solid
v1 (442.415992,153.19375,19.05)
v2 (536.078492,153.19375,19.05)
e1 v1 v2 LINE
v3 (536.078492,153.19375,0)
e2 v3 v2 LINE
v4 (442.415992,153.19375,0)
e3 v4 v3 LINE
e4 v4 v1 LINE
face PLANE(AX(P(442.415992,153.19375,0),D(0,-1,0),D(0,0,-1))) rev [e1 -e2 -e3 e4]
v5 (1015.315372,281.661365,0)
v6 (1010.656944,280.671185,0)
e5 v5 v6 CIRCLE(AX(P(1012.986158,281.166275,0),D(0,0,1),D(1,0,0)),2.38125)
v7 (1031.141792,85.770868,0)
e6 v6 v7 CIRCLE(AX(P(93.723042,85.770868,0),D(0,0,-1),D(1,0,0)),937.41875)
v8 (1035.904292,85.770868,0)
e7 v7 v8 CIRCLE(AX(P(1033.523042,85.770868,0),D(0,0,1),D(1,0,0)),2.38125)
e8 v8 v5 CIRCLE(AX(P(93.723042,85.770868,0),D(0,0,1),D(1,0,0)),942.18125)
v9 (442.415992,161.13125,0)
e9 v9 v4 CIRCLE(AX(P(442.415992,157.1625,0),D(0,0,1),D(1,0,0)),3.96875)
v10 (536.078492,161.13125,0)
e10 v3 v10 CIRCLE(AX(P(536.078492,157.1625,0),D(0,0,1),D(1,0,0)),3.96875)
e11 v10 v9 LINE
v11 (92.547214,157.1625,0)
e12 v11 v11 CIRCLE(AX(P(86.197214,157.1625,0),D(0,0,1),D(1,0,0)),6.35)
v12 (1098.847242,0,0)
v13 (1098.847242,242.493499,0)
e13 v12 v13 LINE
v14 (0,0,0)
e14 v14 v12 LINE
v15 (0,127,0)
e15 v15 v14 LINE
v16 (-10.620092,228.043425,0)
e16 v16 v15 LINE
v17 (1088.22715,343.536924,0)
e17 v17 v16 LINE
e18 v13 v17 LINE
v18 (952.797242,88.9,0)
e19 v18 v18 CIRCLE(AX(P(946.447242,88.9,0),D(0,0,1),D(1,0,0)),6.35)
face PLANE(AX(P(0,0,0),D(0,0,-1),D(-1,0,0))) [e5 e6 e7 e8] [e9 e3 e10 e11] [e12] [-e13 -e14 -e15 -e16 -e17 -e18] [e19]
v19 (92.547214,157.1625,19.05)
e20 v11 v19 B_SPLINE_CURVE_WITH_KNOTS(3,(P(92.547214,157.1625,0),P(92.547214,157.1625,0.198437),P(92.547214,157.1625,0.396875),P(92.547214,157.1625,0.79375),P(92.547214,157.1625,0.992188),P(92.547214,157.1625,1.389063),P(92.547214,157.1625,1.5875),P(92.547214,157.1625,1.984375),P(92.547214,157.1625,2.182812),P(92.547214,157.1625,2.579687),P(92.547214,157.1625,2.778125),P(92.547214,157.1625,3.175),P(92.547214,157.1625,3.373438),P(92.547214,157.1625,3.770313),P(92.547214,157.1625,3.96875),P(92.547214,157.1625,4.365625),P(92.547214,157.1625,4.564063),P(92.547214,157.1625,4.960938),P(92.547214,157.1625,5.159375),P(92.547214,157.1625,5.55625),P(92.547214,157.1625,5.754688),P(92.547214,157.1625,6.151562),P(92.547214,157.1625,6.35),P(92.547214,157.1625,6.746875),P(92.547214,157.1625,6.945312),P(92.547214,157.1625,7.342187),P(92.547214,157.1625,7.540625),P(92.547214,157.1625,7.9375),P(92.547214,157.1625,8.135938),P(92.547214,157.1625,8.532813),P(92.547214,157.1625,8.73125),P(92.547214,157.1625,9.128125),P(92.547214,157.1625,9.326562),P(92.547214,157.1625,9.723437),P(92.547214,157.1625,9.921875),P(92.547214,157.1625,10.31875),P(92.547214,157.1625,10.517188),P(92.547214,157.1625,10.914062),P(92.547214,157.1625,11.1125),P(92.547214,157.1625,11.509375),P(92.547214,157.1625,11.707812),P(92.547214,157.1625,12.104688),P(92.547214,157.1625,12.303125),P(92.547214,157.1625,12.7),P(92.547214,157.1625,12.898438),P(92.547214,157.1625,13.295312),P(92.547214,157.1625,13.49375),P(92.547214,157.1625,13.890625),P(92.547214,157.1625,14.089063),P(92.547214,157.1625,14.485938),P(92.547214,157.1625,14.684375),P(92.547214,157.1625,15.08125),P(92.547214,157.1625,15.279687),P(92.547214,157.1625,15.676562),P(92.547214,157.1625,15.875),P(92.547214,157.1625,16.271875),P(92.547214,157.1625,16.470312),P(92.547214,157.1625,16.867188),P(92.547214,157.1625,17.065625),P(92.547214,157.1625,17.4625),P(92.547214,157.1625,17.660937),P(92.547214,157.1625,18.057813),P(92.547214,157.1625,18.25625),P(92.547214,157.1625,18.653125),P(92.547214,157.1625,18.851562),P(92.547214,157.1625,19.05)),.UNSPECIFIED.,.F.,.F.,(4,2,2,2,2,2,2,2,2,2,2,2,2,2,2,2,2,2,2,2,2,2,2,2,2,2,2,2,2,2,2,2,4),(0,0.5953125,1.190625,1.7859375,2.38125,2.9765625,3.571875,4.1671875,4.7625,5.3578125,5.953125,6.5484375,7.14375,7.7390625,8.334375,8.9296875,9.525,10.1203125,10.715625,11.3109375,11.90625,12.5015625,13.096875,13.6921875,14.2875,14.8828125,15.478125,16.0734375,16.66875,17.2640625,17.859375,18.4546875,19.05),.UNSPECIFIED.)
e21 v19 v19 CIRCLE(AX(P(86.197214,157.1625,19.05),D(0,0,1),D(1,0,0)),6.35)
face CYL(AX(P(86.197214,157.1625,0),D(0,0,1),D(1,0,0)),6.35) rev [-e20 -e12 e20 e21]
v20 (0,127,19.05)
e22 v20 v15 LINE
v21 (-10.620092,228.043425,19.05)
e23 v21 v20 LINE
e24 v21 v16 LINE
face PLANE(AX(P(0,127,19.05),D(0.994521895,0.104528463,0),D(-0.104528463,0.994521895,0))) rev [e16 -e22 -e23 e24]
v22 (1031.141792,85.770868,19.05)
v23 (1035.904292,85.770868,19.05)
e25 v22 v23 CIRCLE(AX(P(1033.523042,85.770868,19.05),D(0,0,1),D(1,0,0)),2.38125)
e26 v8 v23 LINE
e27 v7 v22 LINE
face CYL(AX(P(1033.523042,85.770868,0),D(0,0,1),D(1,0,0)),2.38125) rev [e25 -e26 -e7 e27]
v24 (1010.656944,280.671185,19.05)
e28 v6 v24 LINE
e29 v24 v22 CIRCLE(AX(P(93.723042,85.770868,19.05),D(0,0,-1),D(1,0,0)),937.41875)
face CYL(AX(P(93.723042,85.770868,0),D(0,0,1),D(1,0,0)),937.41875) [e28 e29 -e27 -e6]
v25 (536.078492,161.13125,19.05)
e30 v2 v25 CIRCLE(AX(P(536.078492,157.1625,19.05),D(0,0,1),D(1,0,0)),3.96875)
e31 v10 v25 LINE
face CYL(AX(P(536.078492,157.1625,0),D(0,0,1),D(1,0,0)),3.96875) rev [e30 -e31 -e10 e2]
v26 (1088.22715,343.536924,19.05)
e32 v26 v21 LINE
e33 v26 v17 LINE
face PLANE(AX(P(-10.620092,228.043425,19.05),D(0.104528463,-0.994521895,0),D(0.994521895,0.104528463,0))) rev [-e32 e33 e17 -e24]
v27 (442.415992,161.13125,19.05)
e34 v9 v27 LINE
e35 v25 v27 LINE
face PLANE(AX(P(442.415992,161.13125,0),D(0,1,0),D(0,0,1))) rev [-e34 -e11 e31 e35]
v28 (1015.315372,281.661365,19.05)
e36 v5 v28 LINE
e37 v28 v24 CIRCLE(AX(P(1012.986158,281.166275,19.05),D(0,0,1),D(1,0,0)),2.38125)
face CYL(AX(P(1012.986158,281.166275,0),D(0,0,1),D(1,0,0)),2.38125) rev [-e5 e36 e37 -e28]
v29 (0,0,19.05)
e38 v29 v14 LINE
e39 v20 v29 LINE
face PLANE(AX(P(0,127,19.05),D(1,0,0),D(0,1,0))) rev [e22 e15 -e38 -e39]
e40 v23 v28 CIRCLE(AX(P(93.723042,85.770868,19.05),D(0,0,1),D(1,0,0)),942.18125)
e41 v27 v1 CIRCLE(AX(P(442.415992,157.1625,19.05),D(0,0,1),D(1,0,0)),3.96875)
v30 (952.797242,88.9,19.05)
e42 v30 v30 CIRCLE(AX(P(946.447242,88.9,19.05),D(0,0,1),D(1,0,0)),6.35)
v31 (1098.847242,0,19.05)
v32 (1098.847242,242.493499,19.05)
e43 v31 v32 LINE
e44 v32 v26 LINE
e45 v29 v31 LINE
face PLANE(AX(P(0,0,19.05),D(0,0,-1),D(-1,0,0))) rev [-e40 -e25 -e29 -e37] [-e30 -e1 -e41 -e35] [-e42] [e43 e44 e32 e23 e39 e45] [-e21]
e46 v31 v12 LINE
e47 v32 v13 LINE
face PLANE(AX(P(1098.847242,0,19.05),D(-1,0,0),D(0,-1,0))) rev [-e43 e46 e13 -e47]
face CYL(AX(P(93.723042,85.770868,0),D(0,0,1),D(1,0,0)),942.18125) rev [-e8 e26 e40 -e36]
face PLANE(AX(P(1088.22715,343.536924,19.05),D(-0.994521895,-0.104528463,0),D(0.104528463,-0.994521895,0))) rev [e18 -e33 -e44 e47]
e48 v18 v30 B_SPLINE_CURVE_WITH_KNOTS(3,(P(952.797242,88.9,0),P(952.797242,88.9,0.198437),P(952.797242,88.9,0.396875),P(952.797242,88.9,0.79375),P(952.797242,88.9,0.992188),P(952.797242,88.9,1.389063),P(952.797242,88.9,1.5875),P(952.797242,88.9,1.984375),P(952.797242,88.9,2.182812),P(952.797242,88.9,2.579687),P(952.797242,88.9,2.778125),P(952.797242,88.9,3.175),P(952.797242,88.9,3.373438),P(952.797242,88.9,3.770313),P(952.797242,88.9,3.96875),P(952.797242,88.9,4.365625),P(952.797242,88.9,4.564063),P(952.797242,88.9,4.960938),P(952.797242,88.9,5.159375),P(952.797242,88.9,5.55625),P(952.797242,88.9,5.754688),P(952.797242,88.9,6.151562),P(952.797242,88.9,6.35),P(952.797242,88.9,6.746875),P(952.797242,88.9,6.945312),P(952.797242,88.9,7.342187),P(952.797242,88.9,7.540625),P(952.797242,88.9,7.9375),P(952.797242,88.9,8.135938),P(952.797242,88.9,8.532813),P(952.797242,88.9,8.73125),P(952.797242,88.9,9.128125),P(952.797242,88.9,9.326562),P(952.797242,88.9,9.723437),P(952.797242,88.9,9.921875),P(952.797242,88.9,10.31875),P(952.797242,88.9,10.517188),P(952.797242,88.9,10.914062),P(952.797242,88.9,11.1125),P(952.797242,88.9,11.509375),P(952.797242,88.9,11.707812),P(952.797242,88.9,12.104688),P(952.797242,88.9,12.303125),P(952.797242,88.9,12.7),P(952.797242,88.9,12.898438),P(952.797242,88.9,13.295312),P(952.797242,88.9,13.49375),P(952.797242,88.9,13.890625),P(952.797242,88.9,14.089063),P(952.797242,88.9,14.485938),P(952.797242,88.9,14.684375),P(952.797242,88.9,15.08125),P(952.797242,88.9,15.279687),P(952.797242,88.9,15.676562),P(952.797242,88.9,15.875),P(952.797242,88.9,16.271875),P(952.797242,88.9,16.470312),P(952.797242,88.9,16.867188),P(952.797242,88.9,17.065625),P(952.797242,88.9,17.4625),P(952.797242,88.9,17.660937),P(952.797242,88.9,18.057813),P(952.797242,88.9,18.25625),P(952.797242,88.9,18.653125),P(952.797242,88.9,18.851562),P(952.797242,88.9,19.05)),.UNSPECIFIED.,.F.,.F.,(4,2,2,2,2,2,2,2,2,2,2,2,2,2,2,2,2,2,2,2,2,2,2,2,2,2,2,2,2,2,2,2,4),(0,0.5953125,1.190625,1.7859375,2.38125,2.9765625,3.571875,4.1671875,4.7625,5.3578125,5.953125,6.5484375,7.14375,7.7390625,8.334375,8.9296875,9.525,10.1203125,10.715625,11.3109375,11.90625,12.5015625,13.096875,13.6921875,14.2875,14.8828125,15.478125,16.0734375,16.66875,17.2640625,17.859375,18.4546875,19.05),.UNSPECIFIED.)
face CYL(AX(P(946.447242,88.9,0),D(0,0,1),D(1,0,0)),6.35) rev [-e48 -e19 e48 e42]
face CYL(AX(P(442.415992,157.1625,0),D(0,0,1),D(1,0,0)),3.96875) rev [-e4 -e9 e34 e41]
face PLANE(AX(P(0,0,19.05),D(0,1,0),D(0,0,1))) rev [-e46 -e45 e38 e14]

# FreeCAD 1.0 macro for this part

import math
import FreeCAD as App
import Part
import Sketcher

V = App.Vector
Q = App.Units.Quantity


def add_polygon(sketch, points):
    """Adds a closed chain of lines whose ends are joined by coincident constraints."""
    first, n = sketch.GeometryCount, len(points)
    for a, b in zip(points, points[1:] + points[:1]):
        sketch.addGeometry(Part.LineSegment(App.Vector(*a, 0), App.Vector(*b, 0)), False)
    for i in range(n):
        sketch.addConstraint(Sketcher.Constraint("Coincident", first + i, 2, first + (i + 1) % n, 1))

doc = App.newDocument("Part")
body = doc.addObject("PartDesign::Body", "Body")

# Sketch on XY plane
sketch1 = doc.addObject("Sketcher::SketchObject", "Sketch")
body.addObject(sketch1)
sketch1.AttachmentSupport = (doc.XY_Plane, [""])
sketch1.MapMode = "FlatFace"
add_polygon(sketch1, [(1088.22715, 343.536924), (-10.620092, 228.043425), (0, 127), (0, 0), (1098.847242, 0), (1098.847242, 242.493499)])  # lines 0-5
sketch1.addConstraint(Sketcher.Constraint("Vertical", 2))
sketch1.addConstraint(Sketcher.Constraint("Horizontal", 3))
sketch1.addConstraint(Sketcher.Constraint("Vertical", 4))
sketch1.addConstraint(Sketcher.Constraint("Coincident", 2, 2, -1, 1))
sketch1.addConstraint(Sketcher.Constraint("Perpendicular", 0, 1))
sketch1.addConstraint(Sketcher.Constraint("Parallel", 1, 5))
sketch1.addConstraint(Sketcher.Constraint("Equal", 1, 5))
sketch1.addConstraint(Sketcher.Constraint("DistanceY", 2, 2, 2, 1, Q("5 in")))
sketch1.addConstraint(Sketcher.Constraint("Distance", 1, Q("4 in")))
sketch1.addConstraint(Sketcher.Constraint("Angle", 0, Q("-174 deg")))
sketch1.addConstraint(Sketcher.Constraint("Distance", 0, Q("43.5 in")))
pad1 = doc.addObject("PartDesign::Pad", "Pad")
body.addObject(pad1)
pad1.Profile = sketch1
pad1.Length = Q("0.75 in")

# Sketch on XY plane
sketch2 = doc.addObject("Sketcher::SketchObject", "Sketch001")
body.addObject(sketch2)
sketch2.AttachmentSupport = (doc.XY_Plane, [""])
sketch2.MapMode = "FlatFace"
sketch2.AttachmentOffset = App.Placement(V(0, 0, 0.75 * 25.4), App.Rotation())
sketch2.addGeometry(Part.Circle(V(86.197214, 157.1625, 0), V(0, 0, 1), 6.35), False)
sketch2.addGeometry(Part.LineSegment(V(536.078492, 161.13125, 0), V(442.415992, 161.13125, 0)), False)
sketch2.addGeometry(Part.ArcOfCircle(Part.Circle(V(442.415992, 157.1625, 0), V(0, 0, 1), 3.96875), math.radians(90), math.radians(270)), False)
sketch2.addGeometry(Part.LineSegment(V(442.415992, 153.19375, 0), V(536.078492, 153.19375, 0)), False)
sketch2.addGeometry(Part.ArcOfCircle(Part.Circle(V(536.078492, 157.1625, 0), V(0, 0, 1), 3.96875), math.radians(-90), math.radians(90)), False)
sketch2.addConstraint(Sketcher.Constraint("Tangent", 1, 2, 2, 1))
sketch2.addConstraint(Sketcher.Constraint("Tangent", 2, 2, 3, 1))
sketch2.addConstraint(Sketcher.Constraint("Tangent", 3, 2, 4, 1))
sketch2.addConstraint(Sketcher.Constraint("Tangent", 4, 2, 1, 1))
sketch2.addConstraint(Sketcher.Constraint("Horizontal", 1))
sketch2.addConstraint(Sketcher.Constraint("Horizontal", 3))
sketch2.addConstraint(Sketcher.Constraint("Horizontal", 0, 3, 2, 3))
sketch2.addConstraint(Sketcher.Constraint("Diameter", 0, Q("0.5 in")))
sketch2.addConstraint(Sketcher.Constraint("Radius", 2, Q("0.15625 in")))
sketch2.addConstraint(Sketcher.Constraint("DistanceX", 1, 2, 1, 1, Q("3.6875 in")))
sketch2.addConstraint(Sketcher.Constraint("DistanceY", -1, 1, 0, 3, Q("6.1875 in")))
sketch2.addConstraint(Sketcher.Constraint("DistanceX", -1, 1, 0, 3, Q("86.197214 mm")))
sketch2.addConstraint(Sketcher.Constraint("DistanceX", -1, 1, 2, 3, Q("442.415992 mm")))
pocket1 = doc.addObject("PartDesign::Pocket", "Pocket")
body.addObject(pocket1)
pocket1.Profile = sketch2
pocket1.Type = "ThroughAll"

# Sketch on XY plane
sketch3 = doc.addObject("Sketcher::SketchObject", "Sketch002")
body.addObject(sketch3)
sketch3.AttachmentSupport = (doc.XY_Plane, [""])
sketch3.MapMode = "FlatFace"
sketch3.AttachmentOffset = App.Placement(V(0, 0, 0.75 * 25.4), App.Rotation())
sketch3.addGeometry(Part.ArcOfCircle(Part.Circle(V(93.723043, 85.770868, 0), V(0, 0, 1), 942.18125), math.radians(0), math.radians(12)), False)
sketch3.addGeometry(Part.ArcOfCircle(Part.Circle(V(1012.986158, 281.166275, 0), V(0, 0, 1), 2.38125), math.radians(12), math.radians(192)), False)
sketch3.addGeometry(Part.ArcOfCircle(Part.Circle(V(93.723043, 85.770868, 0), V(0, 0, 1), 937.41875), math.radians(0), math.radians(12)), False)
sketch3.addGeometry(Part.ArcOfCircle(Part.Circle(V(1033.523042, 85.770868, 0), V(0, 0, 1), 2.38125), math.radians(180), math.radians(360)), False)
sketch3.addConstraint(Sketcher.Constraint("Tangent", 0, 2, 1, 1))
sketch3.addConstraint(Sketcher.Constraint("Tangent", 1, 2, 2, 2))
sketch3.addConstraint(Sketcher.Constraint("Tangent", 2, 1, 3, 1))
sketch3.addConstraint(Sketcher.Constraint("Tangent", 3, 2, 0, 1))
sketch3.addConstraint(Sketcher.Constraint("Coincident", 2, 3, 0, 3))
sketch3.addConstraint(Sketcher.Constraint("Horizontal", 2, 3, 3, 3))
sketch3.addConstraint(Sketcher.Constraint("Radius", 0, Q("37.09375 in")))
sketch3.addConstraint(Sketcher.Constraint("Radius", 1, Q("0.09375 in")))
sketch3.addConstraint(Sketcher.Constraint("DistanceX", 1, 2, 3, 3, Q("22.866099 mm")))
sketch3.addConstraint(Sketcher.Constraint("DistanceY", -1, 1, 0, 3, Q("85.770868 mm")))
sketch3.addConstraint(Sketcher.Constraint("DistanceX", -1, 1, 0, 2, Q("1015.315372 mm")))
pocket2 = doc.addObject("PartDesign::Pocket", "Pocket001")
body.addObject(pocket2)
pocket2.Profile = sketch3
pocket2.Type = "ThroughAll"

# Sketch on XY plane
sketch4 = doc.addObject("Sketcher::SketchObject", "Sketch003")
body.addObject(sketch4)
sketch4.AttachmentSupport = (doc.XY_Plane, [""])
sketch4.MapMode = "FlatFace"
sketch4.AttachmentOffset = App.Placement(V(0, 0, 0.75 * 25.4), App.Rotation())
sketch4.addGeometry(Part.Circle(V(946.447242, 88.9, 0), V(0, 0, 1), 6.35), False)
sketch4.addConstraint(Sketcher.Constraint("Diameter", 0, Q("0.5 in")))
sketch4.addConstraint(Sketcher.Constraint("DistanceY", -1, 1, 0, 3, Q("3.5 in")))
sketch4.addConstraint(Sketcher.Constraint("DistanceX", -1, 1, 0, 3, Q("946.447242 mm")))
pocket3 = doc.addObject("PartDesign::Pocket", "Pocket002")
body.addObject(pocket3)
pocket3.Profile = sketch4
pocket3.Type = "ThroughAll"

doc.recompute()
